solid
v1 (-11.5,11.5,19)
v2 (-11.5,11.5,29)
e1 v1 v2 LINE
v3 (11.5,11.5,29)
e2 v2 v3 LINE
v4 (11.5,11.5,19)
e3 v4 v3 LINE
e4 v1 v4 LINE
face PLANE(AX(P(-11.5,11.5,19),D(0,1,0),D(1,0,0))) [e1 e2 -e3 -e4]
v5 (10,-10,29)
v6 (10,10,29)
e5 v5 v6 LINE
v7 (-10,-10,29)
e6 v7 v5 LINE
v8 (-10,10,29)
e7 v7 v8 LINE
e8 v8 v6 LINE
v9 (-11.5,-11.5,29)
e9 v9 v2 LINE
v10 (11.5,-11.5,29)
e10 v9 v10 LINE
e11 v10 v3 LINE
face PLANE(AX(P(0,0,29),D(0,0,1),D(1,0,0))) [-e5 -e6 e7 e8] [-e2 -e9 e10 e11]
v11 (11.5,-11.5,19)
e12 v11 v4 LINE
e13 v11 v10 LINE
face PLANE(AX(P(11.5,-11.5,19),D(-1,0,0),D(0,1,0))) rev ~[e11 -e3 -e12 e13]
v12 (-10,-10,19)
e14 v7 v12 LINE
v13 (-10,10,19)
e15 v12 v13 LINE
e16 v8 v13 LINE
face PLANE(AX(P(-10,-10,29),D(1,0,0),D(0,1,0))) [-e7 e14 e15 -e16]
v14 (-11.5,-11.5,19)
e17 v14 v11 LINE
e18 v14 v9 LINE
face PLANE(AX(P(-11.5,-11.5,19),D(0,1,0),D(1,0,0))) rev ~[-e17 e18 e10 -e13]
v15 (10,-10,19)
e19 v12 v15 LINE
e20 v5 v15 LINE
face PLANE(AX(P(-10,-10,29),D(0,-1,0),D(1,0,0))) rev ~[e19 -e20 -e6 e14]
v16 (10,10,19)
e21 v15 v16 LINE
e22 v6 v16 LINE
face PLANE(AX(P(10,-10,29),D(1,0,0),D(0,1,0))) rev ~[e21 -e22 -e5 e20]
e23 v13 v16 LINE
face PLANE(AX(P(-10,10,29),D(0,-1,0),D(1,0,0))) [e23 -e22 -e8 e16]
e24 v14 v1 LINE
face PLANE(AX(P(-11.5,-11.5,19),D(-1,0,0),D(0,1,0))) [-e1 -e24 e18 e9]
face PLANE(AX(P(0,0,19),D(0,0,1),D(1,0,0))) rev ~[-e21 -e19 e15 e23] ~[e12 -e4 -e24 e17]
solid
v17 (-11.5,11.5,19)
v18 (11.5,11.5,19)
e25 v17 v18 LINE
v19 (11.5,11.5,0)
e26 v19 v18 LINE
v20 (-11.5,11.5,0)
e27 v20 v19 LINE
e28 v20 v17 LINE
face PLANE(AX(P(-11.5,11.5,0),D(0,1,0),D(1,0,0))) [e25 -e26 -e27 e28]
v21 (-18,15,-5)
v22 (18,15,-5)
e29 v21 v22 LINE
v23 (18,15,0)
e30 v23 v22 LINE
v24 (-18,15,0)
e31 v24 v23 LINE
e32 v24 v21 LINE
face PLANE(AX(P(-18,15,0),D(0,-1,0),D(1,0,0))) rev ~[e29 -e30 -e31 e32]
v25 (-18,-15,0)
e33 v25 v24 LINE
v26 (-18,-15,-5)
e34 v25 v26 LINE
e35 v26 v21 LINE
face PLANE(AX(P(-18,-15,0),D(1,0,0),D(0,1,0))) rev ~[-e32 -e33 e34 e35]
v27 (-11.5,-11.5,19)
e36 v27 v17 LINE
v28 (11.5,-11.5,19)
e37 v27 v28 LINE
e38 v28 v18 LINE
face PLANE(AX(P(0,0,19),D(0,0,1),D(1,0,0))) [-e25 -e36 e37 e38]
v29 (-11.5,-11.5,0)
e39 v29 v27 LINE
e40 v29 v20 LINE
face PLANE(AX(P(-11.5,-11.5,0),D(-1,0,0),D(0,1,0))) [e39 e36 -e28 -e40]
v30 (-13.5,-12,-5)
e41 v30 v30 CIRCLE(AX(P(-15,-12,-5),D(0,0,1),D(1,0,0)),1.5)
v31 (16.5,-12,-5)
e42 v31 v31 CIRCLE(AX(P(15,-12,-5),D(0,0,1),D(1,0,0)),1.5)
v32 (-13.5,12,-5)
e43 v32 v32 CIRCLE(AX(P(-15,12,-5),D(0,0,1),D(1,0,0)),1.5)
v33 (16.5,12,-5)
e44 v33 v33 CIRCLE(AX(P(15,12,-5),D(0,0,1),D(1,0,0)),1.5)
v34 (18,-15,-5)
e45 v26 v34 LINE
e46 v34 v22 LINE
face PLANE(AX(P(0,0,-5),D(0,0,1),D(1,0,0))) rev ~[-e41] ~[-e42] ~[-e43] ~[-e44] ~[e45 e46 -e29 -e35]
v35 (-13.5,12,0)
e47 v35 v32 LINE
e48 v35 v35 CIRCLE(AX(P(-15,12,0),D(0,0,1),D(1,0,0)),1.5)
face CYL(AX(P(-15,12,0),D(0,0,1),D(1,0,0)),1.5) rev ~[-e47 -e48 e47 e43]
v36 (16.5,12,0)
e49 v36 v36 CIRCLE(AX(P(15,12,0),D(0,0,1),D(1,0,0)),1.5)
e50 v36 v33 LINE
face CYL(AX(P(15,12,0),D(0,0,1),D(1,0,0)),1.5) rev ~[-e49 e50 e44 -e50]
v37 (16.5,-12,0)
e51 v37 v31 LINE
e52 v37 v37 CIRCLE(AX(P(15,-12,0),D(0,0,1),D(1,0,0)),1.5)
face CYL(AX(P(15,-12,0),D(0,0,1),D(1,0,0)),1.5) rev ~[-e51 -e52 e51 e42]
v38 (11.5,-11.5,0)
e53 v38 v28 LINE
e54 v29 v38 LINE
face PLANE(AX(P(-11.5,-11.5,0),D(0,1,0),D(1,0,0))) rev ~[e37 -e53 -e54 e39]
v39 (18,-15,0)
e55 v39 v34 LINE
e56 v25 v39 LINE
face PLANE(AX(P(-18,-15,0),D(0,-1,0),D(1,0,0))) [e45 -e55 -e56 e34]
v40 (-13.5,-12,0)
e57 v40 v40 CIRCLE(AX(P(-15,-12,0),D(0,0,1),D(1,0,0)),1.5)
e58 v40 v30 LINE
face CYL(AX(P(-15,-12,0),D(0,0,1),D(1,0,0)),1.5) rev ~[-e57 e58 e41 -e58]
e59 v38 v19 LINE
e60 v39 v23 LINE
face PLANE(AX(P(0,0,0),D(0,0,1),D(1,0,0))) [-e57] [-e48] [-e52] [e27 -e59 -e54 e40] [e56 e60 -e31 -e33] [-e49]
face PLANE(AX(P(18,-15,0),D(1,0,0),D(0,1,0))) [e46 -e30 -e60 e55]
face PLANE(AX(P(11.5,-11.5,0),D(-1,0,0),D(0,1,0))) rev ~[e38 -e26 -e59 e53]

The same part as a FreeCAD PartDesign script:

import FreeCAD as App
import Part
import Sketcher

V = App.Vector
Q = App.Units.Quantity

doc = App.newDocument("Part")
body = doc.addObject("PartDesign::Body", "Body")

sketch1 = body.newObject("Sketcher::SketchObject", "Sketch")
sketch1.AttachmentSupport = (doc.getObject("XY_Plane"), [""])
sketch1.MapMode = "FlatFace"
sketch1.addGeometry(Part.LineSegment(V(-18, 15, 0), V(-18, -15, 0)), False)
sketch1.addGeometry(Part.LineSegment(V(-18, -15, 0), V(18, -15, 0)), False)
sketch1.addGeometry(Part.LineSegment(V(18, -15, 0), V(18, 15, 0)), False)
sketch1.addGeometry(Part.LineSegment(V(18, 15, 0), V(-18, 15, 0)), False)
sketch1.addConstraint(Sketcher.Constraint("Coincident", 0, 2, 1, 1))
sketch1.addConstraint(Sketcher.Constraint("Coincident", 1, 2, 2, 1))
sketch1.addConstraint(Sketcher.Constraint("Coincident", 2, 2, 3, 1))
sketch1.addConstraint(Sketcher.Constraint("Coincident", 3, 2, 0, 1))
sketch1.addConstraint(Sketcher.Constraint("Vertical", 0))
sketch1.addConstraint(Sketcher.Constraint("Horizontal", 1))
sketch1.addConstraint(Sketcher.Constraint("Vertical", 2))
sketch1.addConstraint(Sketcher.Constraint("Horizontal", 3))
sketch1.addConstraint(Sketcher.Constraint("Symmetric", 0, 2, 2, 2, -1, 1))
sketch1.addConstraint(Sketcher.Constraint("DistanceX", 1, 1, 1, 2, Q("36 mm")))
sketch1.addConstraint(Sketcher.Constraint("DistanceY", 0, 2, 0, 1, Q("30 mm")))
pad1 = body.newObject("PartDesign::Pad", "Pad")
pad1.Profile = sketch1
pad1.Length = 5
pad1.Reversed = True

sketch2 = body.newObject("Sketcher::SketchObject", "Sketch001")
sketch2.AttachmentSupport = (doc.getObject("XY_Plane"), [""])
sketch2.MapMode = "FlatFace"
sketch2.addGeometry(Part.LineSegment(V(-11.5, 11.5, 0), V(-11.5, -11.5, 0)), False)
sketch2.addGeometry(Part.LineSegment(V(-11.5, -11.5, 0), V(11.5, -11.5, 0)), False)
sketch2.addGeometry(Part.LineSegment(V(11.5, -11.5, 0), V(11.5, 11.5, 0)), False)
sketch2.addGeometry(Part.LineSegment(V(11.5, 11.5, 0), V(-11.5, 11.5, 0)), False)
sketch2.addConstraint(Sketcher.Constraint("Coincident", 0, 2, 1, 1))
sketch2.addConstraint(Sketcher.Constraint("Coincident", 1, 2, 2, 1))
sketch2.addConstraint(Sketcher.Constraint("Coincident", 2, 2, 3, 1))
sketch2.addConstraint(Sketcher.Constraint("Coincident", 3, 2, 0, 1))
sketch2.addConstraint(Sketcher.Constraint("Vertical", 0))
sketch2.addConstraint(Sketcher.Constraint("Horizontal", 1))
sketch2.addConstraint(Sketcher.Constraint("Vertical", 2))
sketch2.addConstraint(Sketcher.Constraint("Horizontal", 3))
sketch2.addConstraint(Sketcher.Constraint("Symmetric", 0, 2, 2, 2, -1, 1))
sketch2.addConstraint(Sketcher.Constraint("Equal", 3, 0))
sketch2.addConstraint(Sketcher.Constraint("DistanceX", 1, 1, 1, 2, Q("23 mm")))
pad2 = body.newObject("PartDesign::Pad", "Pad001")
pad2.Profile = sketch2
pad2.Length = 19

sketch3 = body.newObject("Sketcher::SketchObject", "Sketch002")
sketch3.AttachmentSupport = (doc.getObject("XY_Plane"), [""])
sketch3.MapMode = "FlatFace"
sketch3.addGeometry(Part.Circle(V(-15, -12, 0), V(0, 0, 1), 1.5), False)
sketch3.addGeometry(Part.Circle(V(-15, 12, 0), V(0, 0, 1), 1.5), False)
sketch3.addGeometry(Part.Circle(V(15, 12, 0), V(0, 0, 1), 1.5), False)
sketch3.addGeometry(Part.Circle(V(15, -12, 0), V(0, 0, 1), 1.5), False)
sketch3.addConstraint(Sketcher.Constraint("Equal", 0, 1))
sketch3.addConstraint(Sketcher.Constraint("Equal", 1, 2))
sketch3.addConstraint(Sketcher.Constraint("Equal", 2, 3))
sketch3.addConstraint(Sketcher.Constraint("Symmetric", 0, 3, 2, 3, -1, 1))
sketch3.addConstraint(Sketcher.Constraint("Symmetric", 1, 3, 3, 3, -1, 1))
sketch3.addConstraint(Sketcher.Constraint("Symmetric", 1, 3, 2, 3, -2))
sketch3.addConstraint(Sketcher.Constraint("Diameter", 0, Q("3 mm")))
sketch3.addConstraint(Sketcher.Constraint("DistanceX", 0, 3, -1, 1, Q("15 mm")))
sketch3.addConstraint(Sketcher.Constraint("DistanceY", 0, 3, -1, 1, Q("12 mm")))
pocket1 = body.newObject("PartDesign::Pocket", "Pocket")
pocket1.Profile = sketch3
pocket1.Length = 5
body2 = doc.addObject("PartDesign::Body", "Body001")

sketch4 = body2.newObject("Sketcher::SketchObject", "Sketch003")
sketch4.AttachmentSupport = (doc.getObject("XY_Plane001"), [""])
sketch4.MapMode = "FlatFace"
sketch4.AttachmentOffset = App.Placement(V(0, 0, 19), App.Rotation())
sketch4.addGeometry(Part.LineSegment(V(-11.5, 11.5, 0), V(-11.5, -11.5, 0)), False)
sketch4.addGeometry(Part.LineSegment(V(-11.5, -11.5, 0), V(11.5, -11.5, 0)), False)
sketch4.addGeometry(Part.LineSegment(V(11.5, -11.5, 0), V(11.5, 11.5, 0)), False)
sketch4.addGeometry(Part.LineSegment(V(11.5, 11.5, 0), V(-11.5, 11.5, 0)), False)
sketch4.addConstraint(Sketcher.Constraint("Coincident", 0, 2, 1, 1))
sketch4.addConstraint(Sketcher.Constraint("Coincident", 1, 2, 2, 1))
sketch4.addConstraint(Sketcher.Constraint("Coincident", 2, 2, 3, 1))
sketch4.addConstraint(Sketcher.Constraint("Coincident", 3, 2, 0, 1))
sketch4.addConstraint(Sketcher.Constraint("Vertical", 0))
sketch4.addConstraint(Sketcher.Constraint("Horizontal", 1))
sketch4.addConstraint(Sketcher.Constraint("Vertical", 2))
sketch4.addConstraint(Sketcher.Constraint("Horizontal", 3))
sketch4.addConstraint(Sketcher.Constraint("Symmetric", 0, 2, 2, 2, -1, 1))
sketch4.addConstraint(Sketcher.Constraint("Equal", 3, 0))
sketch4.addConstraint(Sketcher.Constraint("DistanceX", 1, 1, 1, 2, Q("23 mm")))
pad3 = body2.newObject("PartDesign::Pad", "Pad002")
pad3.Profile = sketch4
pad3.Length = 10

sketch5 = body2.newObject("Sketcher::SketchObject", "Sketch004")
sketch5.AttachmentSupport = (doc.getObject("XY_Plane001"), [""])
sketch5.MapMode = "FlatFace"
sketch5.AttachmentOffset = App.Placement(V(0, 0, 29), App.Rotation())
sketch5.addGeometry(Part.LineSegment(V(-10, 10, 0), V(-10, -10, 0)), False)
sketch5.addGeometry(Part.LineSegment(V(-10, -10, 0), V(10, -10, 0)), False)
sketch5.addGeometry(Part.LineSegment(V(10, -10, 0), V(10, 10, 0)), False)
sketch5.addGeometry(Part.LineSegment(V(10, 10, 0), V(-10, 10, 0)), False)
sketch5.addConstraint(Sketcher.Constraint("Coincident", 0, 2, 1, 1))
sketch5.addConstraint(Sketcher.Constraint("Coincident", 1, 2, 2, 1))
sketch5.addConstraint(Sketcher.Constraint("Coincident", 2, 2, 3, 1))
sketch5.addConstraint(Sketcher.Constraint("Coincident", 3, 2, 0, 1))
sketch5.addConstraint(Sketcher.Constraint("Vertical", 0))
sketch5.addConstraint(Sketcher.Constraint("Horizontal", 1))
sketch5.addConstraint(Sketcher.Constraint("Vertical", 2))
sketch5.addConstraint(Sketcher.Constraint("Horizontal", 3))
sketch5.addConstraint(Sketcher.Constraint("Symmetric", 0, 2, 2, 2, -1, 1))
sketch5.addConstraint(Sketcher.Constraint("Equal", 3, 0))
sketch5.addConstraint(Sketcher.Constraint("DistanceX", 1, 1, 1, 2, Q("20 mm")))
pocket2 = body2.newObject("PartDesign::Pocket", "Pocket001")
pocket2.Profile = sketch5
pocket2.Length = 10

doc.recompute()
